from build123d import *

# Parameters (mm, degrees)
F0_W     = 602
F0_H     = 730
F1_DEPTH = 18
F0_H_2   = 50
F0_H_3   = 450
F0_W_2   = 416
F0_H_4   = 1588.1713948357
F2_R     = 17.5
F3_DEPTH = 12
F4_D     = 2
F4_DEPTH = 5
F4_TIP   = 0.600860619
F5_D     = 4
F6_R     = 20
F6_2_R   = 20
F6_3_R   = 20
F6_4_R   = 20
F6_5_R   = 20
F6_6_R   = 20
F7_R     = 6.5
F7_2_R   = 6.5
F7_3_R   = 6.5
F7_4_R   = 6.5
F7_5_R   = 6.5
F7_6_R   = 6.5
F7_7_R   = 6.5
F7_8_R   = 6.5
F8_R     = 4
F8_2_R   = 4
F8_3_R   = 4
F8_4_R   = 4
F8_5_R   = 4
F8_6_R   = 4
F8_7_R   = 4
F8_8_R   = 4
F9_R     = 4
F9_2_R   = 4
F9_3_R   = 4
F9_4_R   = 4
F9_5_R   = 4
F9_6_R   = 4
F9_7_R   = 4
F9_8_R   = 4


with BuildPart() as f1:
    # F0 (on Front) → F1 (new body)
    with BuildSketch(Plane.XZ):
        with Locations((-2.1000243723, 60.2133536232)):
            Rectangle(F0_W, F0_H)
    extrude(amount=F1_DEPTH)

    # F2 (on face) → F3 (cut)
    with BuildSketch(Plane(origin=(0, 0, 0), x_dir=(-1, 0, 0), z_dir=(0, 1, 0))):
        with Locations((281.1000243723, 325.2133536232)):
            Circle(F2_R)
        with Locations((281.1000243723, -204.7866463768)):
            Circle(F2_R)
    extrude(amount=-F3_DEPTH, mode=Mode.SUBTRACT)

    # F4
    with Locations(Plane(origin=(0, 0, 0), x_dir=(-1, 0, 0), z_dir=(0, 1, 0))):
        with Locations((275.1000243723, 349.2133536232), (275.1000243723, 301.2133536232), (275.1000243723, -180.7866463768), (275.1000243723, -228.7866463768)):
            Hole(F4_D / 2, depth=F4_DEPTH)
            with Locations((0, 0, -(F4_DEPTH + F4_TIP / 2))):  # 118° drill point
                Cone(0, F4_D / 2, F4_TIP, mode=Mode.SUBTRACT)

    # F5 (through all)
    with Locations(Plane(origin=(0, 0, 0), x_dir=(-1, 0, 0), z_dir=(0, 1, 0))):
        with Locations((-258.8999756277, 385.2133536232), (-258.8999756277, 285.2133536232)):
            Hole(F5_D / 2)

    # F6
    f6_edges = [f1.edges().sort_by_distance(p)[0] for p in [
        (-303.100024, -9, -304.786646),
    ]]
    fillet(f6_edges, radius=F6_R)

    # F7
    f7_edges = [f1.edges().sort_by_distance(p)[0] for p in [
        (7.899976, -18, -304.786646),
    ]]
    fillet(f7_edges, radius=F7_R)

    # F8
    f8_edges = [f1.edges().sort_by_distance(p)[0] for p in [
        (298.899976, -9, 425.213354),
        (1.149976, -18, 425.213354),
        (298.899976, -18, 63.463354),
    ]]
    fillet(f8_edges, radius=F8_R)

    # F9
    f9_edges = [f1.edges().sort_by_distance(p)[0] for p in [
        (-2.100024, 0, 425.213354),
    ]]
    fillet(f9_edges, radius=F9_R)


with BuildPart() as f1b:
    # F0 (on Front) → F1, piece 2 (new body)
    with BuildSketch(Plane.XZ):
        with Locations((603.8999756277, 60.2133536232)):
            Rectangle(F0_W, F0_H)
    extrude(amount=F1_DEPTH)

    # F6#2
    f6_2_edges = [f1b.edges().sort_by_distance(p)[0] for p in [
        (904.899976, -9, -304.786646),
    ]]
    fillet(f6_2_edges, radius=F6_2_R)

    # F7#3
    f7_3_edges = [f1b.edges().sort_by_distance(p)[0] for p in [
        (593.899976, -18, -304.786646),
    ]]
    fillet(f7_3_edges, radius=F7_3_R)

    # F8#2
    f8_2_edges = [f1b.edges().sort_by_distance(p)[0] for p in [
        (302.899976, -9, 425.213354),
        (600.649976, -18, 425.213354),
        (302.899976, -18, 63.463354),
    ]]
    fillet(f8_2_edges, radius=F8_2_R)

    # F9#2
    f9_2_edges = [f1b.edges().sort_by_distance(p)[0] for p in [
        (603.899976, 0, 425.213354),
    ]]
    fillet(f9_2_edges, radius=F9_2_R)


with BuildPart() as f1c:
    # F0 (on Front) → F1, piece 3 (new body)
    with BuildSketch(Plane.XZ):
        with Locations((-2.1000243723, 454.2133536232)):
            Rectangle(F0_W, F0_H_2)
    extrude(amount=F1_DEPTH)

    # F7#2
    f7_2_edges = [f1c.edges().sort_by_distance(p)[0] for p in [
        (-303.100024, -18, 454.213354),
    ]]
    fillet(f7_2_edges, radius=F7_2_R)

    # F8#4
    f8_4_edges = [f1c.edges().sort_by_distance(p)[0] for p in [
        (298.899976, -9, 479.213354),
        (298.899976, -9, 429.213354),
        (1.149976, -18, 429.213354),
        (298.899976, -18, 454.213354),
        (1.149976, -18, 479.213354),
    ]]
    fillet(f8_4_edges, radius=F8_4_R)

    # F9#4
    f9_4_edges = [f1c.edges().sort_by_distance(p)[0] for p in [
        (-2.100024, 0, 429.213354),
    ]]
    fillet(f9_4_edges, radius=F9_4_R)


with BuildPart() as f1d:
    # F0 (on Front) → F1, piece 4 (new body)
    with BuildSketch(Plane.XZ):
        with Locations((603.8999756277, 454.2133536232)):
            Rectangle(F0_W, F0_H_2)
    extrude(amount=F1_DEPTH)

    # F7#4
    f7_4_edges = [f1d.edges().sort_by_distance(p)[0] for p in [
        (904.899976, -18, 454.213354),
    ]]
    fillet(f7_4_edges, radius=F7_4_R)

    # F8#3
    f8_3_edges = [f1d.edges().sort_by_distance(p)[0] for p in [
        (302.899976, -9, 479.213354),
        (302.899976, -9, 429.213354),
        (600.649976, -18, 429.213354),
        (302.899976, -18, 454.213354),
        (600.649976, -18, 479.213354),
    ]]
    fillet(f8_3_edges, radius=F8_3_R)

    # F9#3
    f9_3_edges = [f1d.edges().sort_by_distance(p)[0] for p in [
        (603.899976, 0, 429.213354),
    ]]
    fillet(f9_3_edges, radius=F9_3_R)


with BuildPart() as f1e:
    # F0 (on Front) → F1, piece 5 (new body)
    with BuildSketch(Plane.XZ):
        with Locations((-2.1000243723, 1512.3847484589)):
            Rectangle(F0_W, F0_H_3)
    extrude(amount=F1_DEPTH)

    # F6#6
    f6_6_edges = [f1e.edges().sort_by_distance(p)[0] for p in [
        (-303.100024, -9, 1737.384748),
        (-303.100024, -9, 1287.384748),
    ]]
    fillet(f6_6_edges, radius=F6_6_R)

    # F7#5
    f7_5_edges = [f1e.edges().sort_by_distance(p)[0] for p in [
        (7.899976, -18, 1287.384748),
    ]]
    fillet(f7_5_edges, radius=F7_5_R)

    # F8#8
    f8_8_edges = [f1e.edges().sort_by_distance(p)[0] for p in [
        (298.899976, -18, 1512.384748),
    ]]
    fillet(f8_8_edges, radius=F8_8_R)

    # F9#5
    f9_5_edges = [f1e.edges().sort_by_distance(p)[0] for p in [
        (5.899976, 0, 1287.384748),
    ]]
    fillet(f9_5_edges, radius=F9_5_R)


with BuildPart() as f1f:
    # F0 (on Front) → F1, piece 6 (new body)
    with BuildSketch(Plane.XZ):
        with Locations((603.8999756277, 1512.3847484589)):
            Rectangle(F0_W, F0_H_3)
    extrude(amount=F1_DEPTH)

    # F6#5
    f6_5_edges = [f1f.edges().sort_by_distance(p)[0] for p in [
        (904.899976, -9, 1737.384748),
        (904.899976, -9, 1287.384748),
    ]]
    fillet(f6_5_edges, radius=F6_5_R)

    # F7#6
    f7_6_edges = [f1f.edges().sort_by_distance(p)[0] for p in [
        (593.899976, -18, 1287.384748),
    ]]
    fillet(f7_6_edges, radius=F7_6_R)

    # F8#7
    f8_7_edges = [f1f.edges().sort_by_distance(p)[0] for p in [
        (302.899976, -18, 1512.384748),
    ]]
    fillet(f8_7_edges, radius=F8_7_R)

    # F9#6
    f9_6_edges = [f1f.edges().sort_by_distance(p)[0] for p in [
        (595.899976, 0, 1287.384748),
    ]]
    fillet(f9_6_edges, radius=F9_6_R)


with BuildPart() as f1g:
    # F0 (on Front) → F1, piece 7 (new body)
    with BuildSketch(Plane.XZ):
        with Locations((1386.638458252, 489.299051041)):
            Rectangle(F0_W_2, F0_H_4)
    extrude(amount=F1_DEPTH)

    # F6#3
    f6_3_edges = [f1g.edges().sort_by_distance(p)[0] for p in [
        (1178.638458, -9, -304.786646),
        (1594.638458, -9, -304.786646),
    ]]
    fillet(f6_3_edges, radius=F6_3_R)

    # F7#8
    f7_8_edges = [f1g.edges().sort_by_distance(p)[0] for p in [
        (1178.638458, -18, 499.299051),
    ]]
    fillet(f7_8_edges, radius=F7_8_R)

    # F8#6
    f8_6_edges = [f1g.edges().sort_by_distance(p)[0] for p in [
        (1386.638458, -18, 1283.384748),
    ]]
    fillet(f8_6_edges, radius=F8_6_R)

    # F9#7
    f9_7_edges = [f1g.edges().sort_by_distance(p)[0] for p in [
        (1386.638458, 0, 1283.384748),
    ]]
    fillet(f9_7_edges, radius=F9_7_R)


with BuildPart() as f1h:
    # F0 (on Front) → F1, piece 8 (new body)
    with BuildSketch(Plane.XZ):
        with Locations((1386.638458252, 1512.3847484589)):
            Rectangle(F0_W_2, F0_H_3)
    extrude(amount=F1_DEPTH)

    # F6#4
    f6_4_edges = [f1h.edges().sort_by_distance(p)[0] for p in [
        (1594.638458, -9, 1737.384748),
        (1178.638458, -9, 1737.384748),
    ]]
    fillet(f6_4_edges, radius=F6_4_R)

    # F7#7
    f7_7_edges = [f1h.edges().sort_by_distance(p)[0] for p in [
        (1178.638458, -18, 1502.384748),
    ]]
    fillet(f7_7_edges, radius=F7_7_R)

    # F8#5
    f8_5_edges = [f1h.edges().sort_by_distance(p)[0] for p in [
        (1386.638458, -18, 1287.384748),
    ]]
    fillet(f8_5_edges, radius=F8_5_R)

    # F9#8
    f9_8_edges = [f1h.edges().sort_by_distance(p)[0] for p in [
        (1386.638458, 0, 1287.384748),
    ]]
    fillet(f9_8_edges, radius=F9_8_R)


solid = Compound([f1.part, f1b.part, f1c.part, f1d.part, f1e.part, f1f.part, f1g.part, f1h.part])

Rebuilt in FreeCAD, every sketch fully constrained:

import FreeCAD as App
import Part
import Sketcher

V = App.Vector
Q = App.Units.Quantity


def edges_at(feature, points):
    """Names of the edges that pass closest to the given points."""
    edges = feature.Shape.Edges
    near = lambda p: min(range(len(edges)), key=lambda i: edges[i].distToShape(Part.Vertex(*p))[0])
    return sorted({f"Edge{near(p) + 1}" for p in points})

doc = App.newDocument("Part")
body = doc.addObject("PartDesign::Body", "Body")

sketch1 = body.newObject("Sketcher::SketchObject", "Sketch")
sketch1.AttachmentSupport = (doc.getObject("XZ_Plane"), [""])
sketch1.MapMode = "FlatFace"
sketch1.addGeometry(Part.LineSegment(V(-303, 425, 0), V(-303, -305, 0)), False)
sketch1.addGeometry(Part.LineSegment(V(-303, -305, 0), V(299, -305, 0)), False)
sketch1.addGeometry(Part.LineSegment(V(299, -305, 0), V(299, 425, 0)), False)
sketch1.addGeometry(Part.LineSegment(V(299, 425, 0), V(-303, 425, 0)), False)
sketch1.addConstraint(Sketcher.Constraint("Coincident", 0, 2, 1, 1))
sketch1.addConstraint(Sketcher.Constraint("Coincident", 1, 2, 2, 1))
sketch1.addConstraint(Sketcher.Constraint("Coincident", 2, 2, 3, 1))
sketch1.addConstraint(Sketcher.Constraint("Coincident", 3, 2, 0, 1))
sketch1.addConstraint(Sketcher.Constraint("Vertical", 0))
sketch1.addConstraint(Sketcher.Constraint("Horizontal", 1))
sketch1.addConstraint(Sketcher.Constraint("Vertical", 2))
sketch1.addConstraint(Sketcher.Constraint("Horizontal", 3))
sketch1.addConstraint(Sketcher.Constraint("DistanceX", 1, 1, 1, 2, Q("602 mm")))
sketch1.addConstraint(Sketcher.Constraint("DistanceY", 0, 2, 0, 1, Q("730 mm")))
sketch1.addConstraint(Sketcher.Constraint("DistanceX", 0, 2, -1, 1, Q("303.100024 mm")))
sketch1.addConstraint(Sketcher.Constraint("DistanceY", 0, 2, -1, 1, Q("304.786646 mm")))
pad1 = body.newObject("PartDesign::Pad", "Pad")
pad1.Profile = sketch1
pad1.Length = 18

sketch2 = body.newObject("Sketcher::SketchObject", "Sketch001")
sketch2.AttachmentSupport = (doc.getObject("XZ_Plane"), [""])
sketch2.MapMode = "FlatFace"
sketch2.addGeometry(Part.Circle(V(-281, 325, 0), V(0, 0, 1), 18), False)
sketch2.addGeometry(Part.Circle(V(-281, -205, 0), V(0, 0, 1), 18), False)
sketch2.addConstraint(Sketcher.Constraint("Equal", 0, 1))
sketch2.addConstraint(Sketcher.Constraint("Vertical", 0, 3, 1, 3))
sketch2.addConstraint(Sketcher.Constraint("Diameter", 0, Q("35 mm")))
sketch2.addConstraint(Sketcher.Constraint("DistanceY", 1, 3, 0, 3, Q("530 mm")))
sketch2.addConstraint(Sketcher.Constraint("DistanceX", 0, 3, -1, 1, Q("281.100024 mm")))
sketch2.addConstraint(Sketcher.Constraint("DistanceY", -1, 1, 0, 3, Q("325.213354 mm")))
pocket1 = body.newObject("PartDesign::Pocket", "Pocket")
pocket1.Profile = sketch2
pocket1.Length = 12
pocket1.Reversed = True

sketch3 = body.newObject("Sketcher::SketchObject", "Sketch002")
sketch3.AttachmentSupport = (doc.getObject("XZ_Plane"), [""])
sketch3.MapMode = "FlatFace"
sketch3.addGeometry(Part.Circle(V(-275.1, 349.2, 0), V(0, 0, 1), 1), False)
sketch3.addGeometry(Part.Circle(V(-275.1, 301.2, 0), V(0, 0, 1), 1), False)
sketch3.addGeometry(Part.Circle(V(-275.1, -180.8, 0), V(0, 0, 1), 1), False)
sketch3.addGeometry(Part.Circle(V(-275.1, -228.8, 0), V(0, 0, 1), 1), False)
sketch3.addConstraint(Sketcher.Constraint("Equal", 0, 1))
sketch3.addConstraint(Sketcher.Constraint("Equal", 1, 2))
sketch3.addConstraint(Sketcher.Constraint("Equal", 2, 3))
sketch3.addConstraint(Sketcher.Constraint("Vertical", 0, 3, 1, 3))
sketch3.addConstraint(Sketcher.Constraint("Vertical", 1, 3, 2, 3))
sketch3.addConstraint(Sketcher.Constraint("Vertical", 2, 3, 3, 3))
sketch3.addConstraint(Sketcher.Constraint("Diameter", 0, Q("2 mm")))
sketch3.addConstraint(Sketcher.Constraint("DistanceY", 1, 3, 0, 3, Q("48 mm")))
sketch3.addConstraint(Sketcher.Constraint("DistanceY", 2, 3, 1, 3, Q("482 mm")))
sketch3.addConstraint(Sketcher.Constraint("DistanceY", 3, 3, 2, 3, Q("48 mm")))
sketch3.addConstraint(Sketcher.Constraint("DistanceX", 0, 3, -1, 1, Q("275.100024 mm")))
sketch3.addConstraint(Sketcher.Constraint("DistanceY", -1, 1, 0, 3, Q("349.213354 mm")))
doc.recompute()
hole = body.newObject("PartDesign::Hole", "Hole")
hole.Profile = sketch3
hole.ThreadType = "None"
hole.Diameter = 2
hole.DepthType = "Dimension"
hole.Depth = 5
hole.DrillPoint = "Angled"
hole.DrillPointAngle = 118
hole.Reversed = True

sketch4 = body.newObject("Sketcher::SketchObject", "Sketch003")
sketch4.AttachmentSupport = (doc.getObject("XZ_Plane"), [""])
sketch4.MapMode = "FlatFace"
sketch4.addGeometry(Part.Circle(V(258.9, 385.2, 0), V(0, 0, 1), 2), False)
sketch4.addGeometry(Part.Circle(V(258.9, 285.2, 0), V(0, 0, 1), 2), False)
sketch4.addConstraint(Sketcher.Constraint("Equal", 0, 1))
sketch4.addConstraint(Sketcher.Constraint("Vertical", 0, 3, 1, 3))
sketch4.addConstraint(Sketcher.Constraint("Diameter", 0, Q("4 mm")))
sketch4.addConstraint(Sketcher.Constraint("DistanceY", 1, 3, 0, 3, Q("100 mm")))
sketch4.addConstraint(Sketcher.Constraint("DistanceX", -1, 1, 0, 3, Q("258.899976 mm")))
sketch4.addConstraint(Sketcher.Constraint("DistanceY", -1, 1, 0, 3, Q("385.213354 mm")))
doc.recompute()
hole2 = body.newObject("PartDesign::Hole", "Hole001")
hole2.Profile = sketch4
hole2.ThreadType = "None"
hole2.Diameter = 4
hole2.DepthType = "ThroughAll"
hole2.Reversed = True
doc.recompute()

fillet = body.newObject("PartDesign::Fillet", "Fillet")
fillet.Base = (hole2, edges_at(hole2, [(-303.1, -9, -304.787)]))
fillet.Radius = 20
doc.recompute()

fillet2 = body.newObject("PartDesign::Fillet", "Fillet001")
fillet2.Base = (fillet, edges_at(fillet, [(7.9, -18, -304.787)]))
fillet2.Radius = 6.5
doc.recompute()

fillet3 = body.newObject("PartDesign::Fillet", "Fillet002")
fillet3.Base = (fillet2, edges_at(fillet2, [(298.9, -9, 425.213), (1.15, -18, 425.213), (298.9, -18, 63.463)]))
fillet3.Radius = 4
doc.recompute()

fillet4 = body.newObject("PartDesign::Fillet", "Fillet003")
fillet4.Base = (fillet3, edges_at(fillet3, [(-2.1, 0, 425.213)]))
fillet4.Radius = 4
body2 = doc.addObject("PartDesign::Body", "Body001")

sketch5 = body2.newObject("Sketcher::SketchObject", "Sketch004")
sketch5.AttachmentSupport = (doc.getObject("XZ_Plane001"), [""])
sketch5.MapMode = "FlatFace"
sketch5.addGeometry(Part.LineSegment(V(303, 425, 0), V(303, -305, 0)), False)
sketch5.addGeometry(Part.LineSegment(V(303, -305, 0), V(905, -305, 0)), False)
sketch5.addGeometry(Part.LineSegment(V(905, -305, 0), V(905, 425, 0)), False)
sketch5.addGeometry(Part.LineSegment(V(905, 425, 0), V(303, 425, 0)), False)
sketch5.addConstraint(Sketcher.Constraint("Coincident", 0, 2, 1, 1))
sketch5.addConstraint(Sketcher.Constraint("Coincident", 1, 2, 2, 1))
sketch5.addConstraint(Sketcher.Constraint("Coincident", 2, 2, 3, 1))
sketch5.addConstraint(Sketcher.Constraint("Coincident", 3, 2, 0, 1))
sketch5.addConstraint(Sketcher.Constraint("Vertical", 0))
sketch5.addConstraint(Sketcher.Constraint("Horizontal", 1))
sketch5.addConstraint(Sketcher.Constraint("Vertical", 2))
sketch5.addConstraint(Sketcher.Constraint("Horizontal", 3))
sketch5.addConstraint(Sketcher.Constraint("DistanceX", 1, 1, 1, 2, Q("602 mm")))
sketch5.addConstraint(Sketcher.Constraint("DistanceY", 0, 2, 0, 1, Q("730 mm")))
sketch5.addConstraint(Sketcher.Constraint("DistanceX", -1, 1, 0, 2, Q("302.899976 mm")))
sketch5.addConstraint(Sketcher.Constraint("DistanceY", 0, 2, -1, 1, Q("304.786646 mm")))
pad2 = body2.newObject("PartDesign::Pad", "Pad001")
pad2.Profile = sketch5
pad2.Length = 18
doc.recompute()

fillet5 = body2.newObject("PartDesign::Fillet", "Fillet004")
fillet5.Base = (pad2, edges_at(pad2, [(904.9, -9, -304.787)]))
fillet5.Radius = 20
doc.recompute()

fillet6 = body2.newObject("PartDesign::Fillet", "Fillet005")
fillet6.Base = (fillet5, edges_at(fillet5, [(593.9, -18, -304.787)]))
fillet6.Radius = 6.5
doc.recompute()

fillet7 = body2.newObject("PartDesign::Fillet", "Fillet006")
fillet7.Base = (fillet6, edges_at(fillet6, [(302.9, -9, 425.213), (600.65, -18, 425.213), (302.9, -18, 63.463)]))
fillet7.Radius = 4
doc.recompute()

fillet8 = body2.newObject("PartDesign::Fillet", "Fillet007")
fillet8.Base = (fillet7, edges_at(fillet7, [(603.9, 0, 425.213)]))
fillet8.Radius = 4
body3 = doc.addObject("PartDesign::Body", "Body002")

sketch6 = body3.newObject("Sketcher::SketchObject", "Sketch005")
sketch6.AttachmentSupport = (doc.getObject("XZ_Plane002"), [""])
sketch6.MapMode = "FlatFace"
sketch6.addGeometry(Part.LineSegment(V(-303, 479, 0), V(-303, 429, 0)), False)
sketch6.addGeometry(Part.LineSegment(V(-303, 429, 0), V(299, 429, 0)), False)
sketch6.addGeometry(Part.LineSegment(V(299, 429, 0), V(299, 479, 0)), False)
sketch6.addGeometry(Part.LineSegment(V(299, 479, 0), V(-303, 479, 0)), False)
sketch6.addConstraint(Sketcher.Constraint("Coincident", 0, 2, 1, 1))
sketch6.addConstraint(Sketcher.Constraint("Coincident", 1, 2, 2, 1))
sketch6.addConstraint(Sketcher.Constraint("Coincident", 2, 2, 3, 1))
sketch6.addConstraint(Sketcher.Constraint("Coincident", 3, 2, 0, 1))
sketch6.addConstraint(Sketcher.Constraint("Vertical", 0))
sketch6.addConstraint(Sketcher.Constraint("Horizontal", 1))
sketch6.addConstraint(Sketcher.Constraint("Vertical", 2))
sketch6.addConstraint(Sketcher.Constraint("Horizontal", 3))
sketch6.addConstraint(Sketcher.Constraint("DistanceX", 1, 1, 1, 2, Q("602 mm")))
sketch6.addConstraint(Sketcher.Constraint("DistanceY", 0, 2, 0, 1, Q("50 mm")))
sketch6.addConstraint(Sketcher.Constraint("DistanceX", 0, 2, -1, 1, Q("303.100024 mm")))
sketch6.addConstraint(Sketcher.Constraint("DistanceY", -1, 1, 0, 2, Q("429.213354 mm")))
pad3 = body3.newObject("PartDesign::Pad", "Pad002")
pad3.Profile = sketch6
pad3.Length = 18
doc.recompute()

fillet9 = body3.newObject("PartDesign::Fillet", "Fillet008")
fillet9.Base = (pad3, edges_at(pad3, [(-303.1, -18, 454.213)]))
fillet9.Radius = 6.5
doc.recompute()

fillet10 = body3.newObject("PartDesign::Fillet", "Fillet009")
fillet10.Base = (fillet9, edges_at(fillet9, [
    (298.9, -9, 479.213),
    (298.9, -9, 429.213),
    (1.15, -18, 429.213),
    (298.9, -18, 454.213),
    (1.15, -18, 479.213),
]))
fillet10.Radius = 4
doc.recompute()

fillet11 = body3.newObject("PartDesign::Fillet", "Fillet010")
fillet11.Base = (fillet10, edges_at(fillet10, [(-2.1, 0, 429.213)]))
fillet11.Radius = 4
body4 = doc.addObject("PartDesign::Body", "Body003")

sketch7 = body4.newObject("Sketcher::SketchObject", "Sketch006")
sketch7.AttachmentSupport = (doc.getObject("XZ_Plane003"), [""])
sketch7.MapMode = "FlatFace"
sketch7.addGeometry(Part.LineSegment(V(303, 479, 0), V(303, 429, 0)), False)
sketch7.addGeometry(Part.LineSegment(V(303, 429, 0), V(905, 429, 0)), False)
sketch7.addGeometry(Part.LineSegment(V(905, 429, 0), V(905, 479, 0)), False)
sketch7.addGeometry(Part.LineSegment(V(905, 479, 0), V(303, 479, 0)), False)
sketch7.addConstraint(Sketcher.Constraint("Coincident", 0, 2, 1, 1))
sketch7.addConstraint(Sketcher.Constraint("Coincident", 1, 2, 2, 1))
sketch7.addConstraint(Sketcher.Constraint("Coincident", 2, 2, 3, 1))
sketch7.addConstraint(Sketcher.Constraint("Coincident", 3, 2, 0, 1))
sketch7.addConstraint(Sketcher.Constraint("Vertical", 0))
sketch7.addConstraint(Sketcher.Constraint("Horizontal", 1))
sketch7.addConstraint(Sketcher.Constraint("Vertical", 2))
sketch7.addConstraint(Sketcher.Constraint("Horizontal", 3))
sketch7.addConstraint(Sketcher.Constraint("DistanceX", 1, 1, 1, 2, Q("602 mm")))
sketch7.addConstraint(Sketcher.Constraint("DistanceY", 0, 2, 0, 1, Q("50 mm")))
sketch7.addConstraint(Sketcher.Constraint("DistanceX", -1, 1, 0, 2, Q("302.899976 mm")))
sketch7.addConstraint(Sketcher.Constraint("DistanceY", -1, 1, 0, 2, Q("429.213354 mm")))
pad4 = body4.newObject("PartDesign::Pad", "Pad003")
pad4.Profile = sketch7
pad4.Length = 18
doc.recompute()

fillet12 = body4.newObject("PartDesign::Fillet", "Fillet011")
fillet12.Base = (pad4, edges_at(pad4, [(904.9, -18, 454.213)]))
fillet12.Radius = 6.5
doc.recompute()

fillet13 = body4.newObject("PartDesign::Fillet", "Fillet012")
fillet13.Base = (fillet12, edges_at(fillet12, [
    (302.9, -9, 479.213),
    (302.9, -9, 429.213),
    (600.65, -18, 429.213),
    (302.9, -18, 454.213),
    (600.65, -18, 479.213),
]))
fillet13.Radius = 4
doc.recompute()

fillet14 = body4.newObject("PartDesign::Fillet", "Fillet013")
fillet14.Base = (fillet13, edges_at(fillet13, [(603.9, 0, 429.213)]))
fillet14.Radius = 4
body5 = doc.addObject("PartDesign::Body", "Body004")

sketch8 = body5.newObject("Sketcher::SketchObject", "Sketch007")
sketch8.AttachmentSupport = (doc.getObject("XZ_Plane004"), [""])
sketch8.MapMode = "FlatFace"
sketch8.addGeometry(Part.LineSegment(V(-303, 1737, 0), V(-303, 1287, 0)), False)
sketch8.addGeometry(Part.LineSegment(V(-303, 1287, 0), V(299, 1287, 0)), False)
sketch8.addGeometry(Part.LineSegment(V(299, 1287, 0), V(299, 1737, 0)), False)
sketch8.addGeometry(Part.LineSegment(V(299, 1737, 0), V(-303, 1737, 0)), False)
sketch8.addConstraint(Sketcher.Constraint("Coincident", 0, 2, 1, 1))
sketch8.addConstraint(Sketcher.Constraint("Coincident", 1, 2, 2, 1))
sketch8.addConstraint(Sketcher.Constraint("Coincident", 2, 2, 3, 1))
sketch8.addConstraint(Sketcher.Constraint("Coincident", 3, 2, 0, 1))
sketch8.addConstraint(Sketcher.Constraint("Vertical", 0))
sketch8.addConstraint(Sketcher.Constraint("Horizontal", 1))
sketch8.addConstraint(Sketcher.Constraint("Vertical", 2))
sketch8.addConstraint(Sketcher.Constraint("Horizontal", 3))
sketch8.addConstraint(Sketcher.Constraint("DistanceX", 1, 1, 1, 2, Q("602 mm")))
sketch8.addConstraint(Sketcher.Constraint("DistanceY", 0, 2, 0, 1, Q("450 mm")))
sketch8.addConstraint(Sketcher.Constraint("DistanceY", -1, 1, 0, 2, Q("1287.384748 mm")))
sketch8.addConstraint(Sketcher.Constraint("DistanceX", 0, 2, -1, 1, Q("303.100024 mm")))
pad5 = body5.newObject("PartDesign::Pad", "Pad004")
pad5.Profile = sketch8
pad5.Length = 18
doc.recompute()

fillet15 = body5.newObject("PartDesign::Fillet", "Fillet014")
fillet15.Base = (pad5, edges_at(pad5, [(-303.1, -9, 1737.385), (-303.1, -9, 1287.385)]))
fillet15.Radius = 20
doc.recompute()

fillet16 = body5.newObject("PartDesign::Fillet", "Fillet015")
fillet16.Base = (fillet15, edges_at(fillet15, [(7.9, -18, 1287.385)]))
fillet16.Radius = 6.5
doc.recompute()

fillet17 = body5.newObject("PartDesign::Fillet", "Fillet016")
fillet17.Base = (fillet16, edges_at(fillet16, [(298.9, -18, 1512.385)]))
fillet17.Radius = 4
doc.recompute()

fillet18 = body5.newObject("PartDesign::Fillet", "Fillet017")
fillet18.Base = (fillet17, edges_at(fillet17, [(5.9, 0, 1287.385)]))
fillet18.Radius = 4
body6 = doc.addObject("PartDesign::Body", "Body005")

sketch9 = body6.newObject("Sketcher::SketchObject", "Sketch008")
sketch9.AttachmentSupport = (doc.getObject("XZ_Plane005"), [""])
sketch9.MapMode = "FlatFace"
sketch9.addGeometry(Part.LineSegment(V(303, 1737, 0), V(303, 1287, 0)), False)
sketch9.addGeometry(Part.LineSegment(V(303, 1287, 0), V(905, 1287, 0)), False)
sketch9.addGeometry(Part.LineSegment(V(905, 1287, 0), V(905, 1737, 0)), False)
sketch9.addGeometry(Part.LineSegment(V(905, 1737, 0), V(303, 1737, 0)), False)
sketch9.addConstraint(Sketcher.Constraint("Coincident", 0, 2, 1, 1))
sketch9.addConstraint(Sketcher.Constraint("Coincident", 1, 2, 2, 1))
sketch9.addConstraint(Sketcher.Constraint("Coincident", 2, 2, 3, 1))
sketch9.addConstraint(Sketcher.Constraint("Coincident", 3, 2, 0, 1))
sketch9.addConstraint(Sketcher.Constraint("Vertical", 0))
sketch9.addConstraint(Sketcher.Constraint("Horizontal", 1))
sketch9.addConstraint(Sketcher.Constraint("Vertical", 2))
sketch9.addConstraint(Sketcher.Constraint("Horizontal", 3))
sketch9.addConstraint(Sketcher.Constraint("DistanceX", 1, 1, 1, 2, Q("602 mm")))
sketch9.addConstraint(Sketcher.Constraint("DistanceY", 0, 2, 0, 1, Q("450 mm")))
sketch9.addConstraint(Sketcher.Constraint("DistanceY", -1, 1, 0, 2, Q("1287.384748 mm")))
sketch9.addConstraint(Sketcher.Constraint("DistanceX", -1, 1, 0, 2, Q("302.899976 mm")))
pad6 = body6.newObject("PartDesign::Pad", "Pad005")
pad6.Profile = sketch9
pad6.Length = 18
doc.recompute()

fillet19 = body6.newObject("PartDesign::Fillet", "Fillet018")
fillet19.Base = (pad6, edges_at(pad6, [(904.9, -9, 1737.385), (904.9, -9, 1287.385)]))
fillet19.Radius = 20
doc.recompute()

fillet20 = body6.newObject("PartDesign::Fillet", "Fillet019")
fillet20.Base = (fillet19, edges_at(fillet19, [(593.9, -18, 1287.385)]))
fillet20.Radius = 6.5
doc.recompute()

fillet21 = body6.newObject("PartDesign::Fillet", "Fillet020")
fillet21.Base = (fillet20, edges_at(fillet20, [(302.9, -18, 1512.385)]))
fillet21.Radius = 4
doc.recompute()

fillet22 = body6.newObject("PartDesign::Fillet", "Fillet021")
fillet22.Base = (fillet21, edges_at(fillet21, [(595.9, 0, 1287.385)]))
fillet22.Radius = 4
body7 = doc.addObject("PartDesign::Body", "Body006")

sketch10 = body7.newObject("Sketcher::SketchObject", "Sketch009")
sketch10.AttachmentSupport = (doc.getObject("XZ_Plane006"), [""])
sketch10.MapMode = "FlatFace"
sketch10.addGeometry(Part.LineSegment(V(1179, 1283, 0), V(1179, -305, 0)), False)
sketch10.addGeometry(Part.LineSegment(V(1179, -305, 0), V(1595, -305, 0)), False)
sketch10.addGeometry(Part.LineSegment(V(1595, -305, 0), V(1595, 1283, 0)), False)
sketch10.addGeometry(Part.LineSegment(V(1595, 1283, 0), V(1179, 1283, 0)), False)
sketch10.addConstraint(Sketcher.Constraint("Coincident", 0, 2, 1, 1))
sketch10.addConstraint(Sketcher.Constraint("Coincident", 1, 2, 2, 1))
sketch10.addConstraint(Sketcher.Constraint("Coincident", 2, 2, 3, 1))
sketch10.addConstraint(Sketcher.Constraint("Coincident", 3, 2, 0, 1))
sketch10.addConstraint(Sketcher.Constraint("Vertical", 0))
sketch10.addConstraint(Sketcher.Constraint("Horizontal", 1))
sketch10.addConstraint(Sketcher.Constraint("Vertical", 2))
sketch10.addConstraint(Sketcher.Constraint("Horizontal", 3))
sketch10.addConstraint(Sketcher.Constraint("DistanceX", 1, 1, 1, 2, Q("416 mm")))
sketch10.addConstraint(Sketcher.Constraint("DistanceY", 0, 2, 0, 1, Q("1588.171395 mm")))
sketch10.addConstraint(Sketcher.Constraint("DistanceX", -1, 1, 0, 2, Q("1178.638458 mm")))
sketch10.addConstraint(Sketcher.Constraint("DistanceY", -1, 1, 2, 2, Q("1283.384748 mm")))
pad7 = body7.newObject("PartDesign::Pad", "Pad006")
pad7.Profile = sketch10
pad7.Length = 18
doc.recompute()

fillet23 = body7.newObject("PartDesign::Fillet", "Fillet022")
fillet23.Base = (pad7, edges_at(pad7, [(1178.638, -9, -304.787), (1594.638, -9, -304.787)]))
fillet23.Radius = 20
doc.recompute()

fillet24 = body7.newObject("PartDesign::Fillet", "Fillet023")
fillet24.Base = (fillet23, edges_at(fillet23, [(1178.638, -18, 499.299)]))
fillet24.Radius = 6.5
doc.recompute()

fillet25 = body7.newObject("PartDesign::Fillet", "Fillet024")
fillet25.Base = (fillet24, edges_at(fillet24, [(1386.638, -18, 1283.385)]))
fillet25.Radius = 4
doc.recompute()

fillet26 = body7.newObject("PartDesign::Fillet", "Fillet025")
fillet26.Base = (fillet25, edges_at(fillet25, [(1386.638, 0, 1283.385)]))
fillet26.Radius = 4
body8 = doc.addObject("PartDesign::Body", "Body007")

sketch11 = body8.newObject("Sketcher::SketchObject", "Sketch010")
sketch11.AttachmentSupport = (doc.getObject("XZ_Plane007"), [""])
sketch11.MapMode = "FlatFace"
sketch11.addGeometry(Part.LineSegment(V(1179, 1737, 0), V(1179, 1287, 0)), False)
sketch11.addGeometry(Part.LineSegment(V(1179, 1287, 0), V(1595, 1287, 0)), False)
sketch11.addGeometry(Part.LineSegment(V(1595, 1287, 0), V(1595, 1737, 0)), False)
sketch11.addGeometry(Part.LineSegment(V(1595, 1737, 0), V(1179, 1737, 0)), False)
sketch11.addConstraint(Sketcher.Constraint("Coincident", 0, 2, 1, 1))
sketch11.addConstraint(Sketcher.Constraint("Coincident", 1, 2, 2, 1))
sketch11.addConstraint(Sketcher.Constraint("Coincident", 2, 2, 3, 1))
sketch11.addConstraint(Sketcher.Constraint("Coincident", 3, 2, 0, 1))
sketch11.addConstraint(Sketcher.Constraint("Vertical", 0))
sketch11.addConstraint(Sketcher.Constraint("Horizontal", 1))
sketch11.addConstraint(Sketcher.Constraint("Vertical", 2))
sketch11.addConstraint(Sketcher.Constraint("Horizontal", 3))
sketch11.addConstraint(Sketcher.Constraint("DistanceX", 1, 1, 1, 2, Q("416 mm")))
sketch11.addConstraint(Sketcher.Constraint("DistanceY", 0, 2, 0, 1, Q("450 mm")))
sketch11.addConstraint(Sketcher.Constraint("DistanceX", -1, 1, 0, 2, Q("1178.638458 mm")))
sketch11.addConstraint(Sketcher.Constraint("DistanceY", -1, 1, 0, 2, Q("1287.384748 mm")))
pad8 = body8.newObject("PartDesign::Pad", "Pad007")
pad8.Profile = sketch11
pad8.Length = 18
doc.recompute()

fillet27 = body8.newObject("PartDesign::Fillet", "Fillet026")
fillet27.Base = (pad8, edges_at(pad8, [(1594.638, -9, 1737.385), (1178.638, -9, 1737.385)]))
fillet27.Radius = 20
doc.recompute()

fillet28 = body8.newObject("PartDesign::Fillet", "Fillet027")
fillet28.Base = (fillet27, edges_at(fillet27, [(1178.638, -18, 1502.385)]))
fillet28.Radius = 6.5
doc.recompute()

fillet29 = body8.newObject("PartDesign::Fillet", "Fillet028")
fillet29.Base = (fillet28, edges_at(fillet28, [(1386.638, -18, 1287.385)]))
fillet29.Radius = 4
doc.recompute()

fillet30 = body8.newObject("PartDesign::Fillet", "Fillet029")
fillet30.Base = (fillet29, edges_at(fillet29, [(1386.638, 0, 1287.385)]))
fillet30.Radius = 4

doc.recompute()
